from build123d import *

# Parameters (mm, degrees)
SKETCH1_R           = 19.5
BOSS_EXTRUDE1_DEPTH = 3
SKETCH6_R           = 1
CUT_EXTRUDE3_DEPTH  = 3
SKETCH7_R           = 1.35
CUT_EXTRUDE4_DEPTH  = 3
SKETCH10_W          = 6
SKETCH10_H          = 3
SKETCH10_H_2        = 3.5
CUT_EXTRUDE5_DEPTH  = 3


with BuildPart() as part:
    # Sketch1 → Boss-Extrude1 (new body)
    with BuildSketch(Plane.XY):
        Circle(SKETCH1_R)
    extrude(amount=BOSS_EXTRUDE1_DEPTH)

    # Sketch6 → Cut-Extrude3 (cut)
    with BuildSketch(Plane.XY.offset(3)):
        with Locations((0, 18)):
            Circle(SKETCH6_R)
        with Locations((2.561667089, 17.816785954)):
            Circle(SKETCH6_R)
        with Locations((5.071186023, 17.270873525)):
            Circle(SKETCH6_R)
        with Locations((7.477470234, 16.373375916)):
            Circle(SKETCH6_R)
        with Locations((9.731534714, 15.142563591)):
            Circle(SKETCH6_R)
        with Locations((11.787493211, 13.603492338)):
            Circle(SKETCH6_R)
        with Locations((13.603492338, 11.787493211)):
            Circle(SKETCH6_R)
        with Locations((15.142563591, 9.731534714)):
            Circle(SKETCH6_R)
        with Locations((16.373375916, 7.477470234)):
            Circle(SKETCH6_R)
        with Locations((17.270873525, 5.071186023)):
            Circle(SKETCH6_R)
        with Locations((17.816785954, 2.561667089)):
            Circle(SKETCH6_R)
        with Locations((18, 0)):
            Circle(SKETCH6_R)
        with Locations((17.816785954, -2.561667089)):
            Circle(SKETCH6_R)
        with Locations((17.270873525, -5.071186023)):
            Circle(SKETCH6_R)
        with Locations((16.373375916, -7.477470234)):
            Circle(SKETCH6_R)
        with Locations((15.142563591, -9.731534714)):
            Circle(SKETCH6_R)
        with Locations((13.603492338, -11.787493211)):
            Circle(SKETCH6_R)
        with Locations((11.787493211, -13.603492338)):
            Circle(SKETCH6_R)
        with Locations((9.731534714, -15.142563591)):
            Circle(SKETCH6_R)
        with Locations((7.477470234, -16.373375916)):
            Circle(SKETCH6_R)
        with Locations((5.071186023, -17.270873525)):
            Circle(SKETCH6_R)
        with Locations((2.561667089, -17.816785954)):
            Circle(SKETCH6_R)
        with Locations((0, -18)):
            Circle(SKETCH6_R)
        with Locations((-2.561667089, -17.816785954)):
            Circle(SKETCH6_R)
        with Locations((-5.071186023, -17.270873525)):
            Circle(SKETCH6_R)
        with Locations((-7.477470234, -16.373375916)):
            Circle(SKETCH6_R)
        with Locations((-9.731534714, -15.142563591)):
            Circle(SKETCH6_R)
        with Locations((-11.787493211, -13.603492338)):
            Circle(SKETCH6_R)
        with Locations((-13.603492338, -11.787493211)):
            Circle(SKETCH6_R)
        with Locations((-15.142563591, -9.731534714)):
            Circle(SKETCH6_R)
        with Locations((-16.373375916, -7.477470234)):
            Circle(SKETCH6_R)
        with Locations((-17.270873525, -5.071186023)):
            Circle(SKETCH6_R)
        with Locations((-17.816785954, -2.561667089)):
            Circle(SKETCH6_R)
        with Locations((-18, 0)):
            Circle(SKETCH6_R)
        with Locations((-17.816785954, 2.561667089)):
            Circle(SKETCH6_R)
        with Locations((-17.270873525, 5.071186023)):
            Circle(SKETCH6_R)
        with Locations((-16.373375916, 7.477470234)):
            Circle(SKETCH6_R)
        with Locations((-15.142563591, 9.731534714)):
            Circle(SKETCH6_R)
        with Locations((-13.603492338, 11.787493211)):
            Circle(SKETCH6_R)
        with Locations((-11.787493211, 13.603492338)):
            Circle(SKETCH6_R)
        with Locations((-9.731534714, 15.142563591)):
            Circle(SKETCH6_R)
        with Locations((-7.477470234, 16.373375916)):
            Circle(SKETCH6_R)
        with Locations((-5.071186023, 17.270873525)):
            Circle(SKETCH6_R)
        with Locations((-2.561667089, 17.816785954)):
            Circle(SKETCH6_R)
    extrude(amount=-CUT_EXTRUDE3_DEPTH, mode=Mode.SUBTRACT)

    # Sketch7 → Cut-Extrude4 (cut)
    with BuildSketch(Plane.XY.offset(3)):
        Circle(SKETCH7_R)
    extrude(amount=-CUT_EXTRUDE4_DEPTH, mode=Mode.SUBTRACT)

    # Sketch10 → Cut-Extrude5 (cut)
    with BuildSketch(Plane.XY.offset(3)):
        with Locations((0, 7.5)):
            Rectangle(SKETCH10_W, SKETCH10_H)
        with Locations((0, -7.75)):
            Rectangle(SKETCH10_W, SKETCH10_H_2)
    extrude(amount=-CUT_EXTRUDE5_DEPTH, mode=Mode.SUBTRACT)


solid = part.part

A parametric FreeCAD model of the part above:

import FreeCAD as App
import Part
import Sketcher

doc = App.newDocument("Part")
body = doc.addObject("PartDesign::Body", "Body")

sketch1 = body.newObject("Sketcher::SketchObject", "Sketch")
sketch1.AttachmentSupport = (doc.getObject("XY_Plane"), [""])
sketch1.MapMode = "FlatFace"
sketch1.addGeometry(Part.Circle(App.Vector(0, 0, 0), App.Vector(0, 0, 1), 20), False)
sketch1.addConstraint(Sketcher.Constraint("Coincident", 0, 3, -1, 1))
sketch1.addConstraint(Sketcher.Constraint("Diameter", 0, 39.0))
pad1 = body.newObject("PartDesign::Pad", "Pad")
pad1.Profile = sketch1
pad1.Length = 3

sketch2 = body.newObject("Sketcher::SketchObject", "Sketch001")
sketch2.AttachmentSupport = (doc.getObject("XY_Plane"), [""])
sketch2.MapMode = "FlatFace"
sketch2.AttachmentOffset = App.Placement(App.Vector(0, 0, 3), App.Rotation())
sketch2.addGeometry(Part.Circle(App.Vector(0, 18, 0), App.Vector(0, 0, 1), 1), False)
sketch2.addGeometry(Part.Circle(App.Vector(2.6, 17.8, 0), App.Vector(0, 0, 1), 1), False)
sketch2.addGeometry(Part.Circle(App.Vector(5.1, 17.3, 0), App.Vector(0, 0, 1), 1), False)
sketch2.addGeometry(Part.Circle(App.Vector(7.5, 16.4, 0), App.Vector(0, 0, 1), 1), False)
sketch2.addGeometry(Part.Circle(App.Vector(9.7, 15.1, 0), App.Vector(0, 0, 1), 1), False)
sketch2.addGeometry(Part.Circle(App.Vector(11.8, 13.6, 0), App.Vector(0, 0, 1), 1), False)
sketch2.addGeometry(Part.Circle(App.Vector(13.6, 11.8, 0), App.Vector(0, 0, 1), 1), False)
sketch2.addGeometry(Part.Circle(App.Vector(15.1, 9.7, 0), App.Vector(0, 0, 1), 1), False)
sketch2.addGeometry(Part.Circle(App.Vector(16.4, 7.5, 0), App.Vector(0, 0, 1), 1), False)
sketch2.addGeometry(Part.Circle(App.Vector(17.3, 5.1, 0), App.Vector(0, 0, 1), 1), False)
sketch2.addGeometry(Part.Circle(App.Vector(17.8, 2.6, 0), App.Vector(0, 0, 1), 1), False)
sketch2.addGeometry(Part.Circle(App.Vector(18, 0, 0), App.Vector(0, 0, 1), 1), False)
sketch2.addGeometry(Part.Circle(App.Vector(17.8, -2.6, 0), App.Vector(0, 0, 1), 1), False)
sketch2.addGeometry(Part.Circle(App.Vector(17.3, -5.1, 0), App.Vector(0, 0, 1), 1), False)
sketch2.addGeometry(Part.Circle(App.Vector(16.4, -7.5, 0), App.Vector(0, 0, 1), 1), False)
sketch2.addGeometry(Part.Circle(App.Vector(15.1, -9.7, 0), App.Vector(0, 0, 1), 1), False)
sketch2.addGeometry(Part.Circle(App.Vector(13.6, -11.8, 0), App.Vector(0, 0, 1), 1), False)
sketch2.addGeometry(Part.Circle(App.Vector(11.8, -13.6, 0), App.Vector(0, 0, 1), 1), False)
sketch2.addGeometry(Part.Circle(App.Vector(9.7, -15.1, 0), App.Vector(0, 0, 1), 1), False)
sketch2.addGeometry(Part.Circle(App.Vector(7.5, -16.4, 0), App.Vector(0, 0, 1), 1), False)
sketch2.addGeometry(Part.Circle(App.Vector(5.1, -17.3, 0), App.Vector(0, 0, 1), 1), False)
sketch2.addGeometry(Part.Circle(App.Vector(2.6, -17.8, 0), App.Vector(0, 0, 1), 1), False)
sketch2.addGeometry(Part.Circle(App.Vector(0, -18, 0), App.Vector(0, 0, 1), 1), False)
sketch2.addGeometry(Part.Circle(App.Vector(-2.6, -17.8, 0), App.Vector(0, 0, 1), 1), False)
sketch2.addGeometry(Part.Circle(App.Vector(-5.1, -17.3, 0), App.Vector(0, 0, 1), 1), False)
sketch2.addGeometry(Part.Circle(App.Vector(-7.5, -16.4, 0), App.Vector(0, 0, 1), 1), False)
sketch2.addGeometry(Part.Circle(App.Vector(-9.7, -15.1, 0), App.Vector(0, 0, 1), 1), False)
sketch2.addGeometry(Part.Circle(App.Vector(-11.8, -13.6, 0), App.Vector(0, 0, 1), 1), False)
sketch2.addGeometry(Part.Circle(App.Vector(-13.6, -11.8, 0), App.Vector(0, 0, 1), 1), False)
sketch2.addGeometry(Part.Circle(App.Vector(-15.1, -9.7, 0), App.Vector(0, 0, 1), 1), False)
sketch2.addGeometry(Part.Circle(App.Vector(-16.4, -7.5, 0), App.Vector(0, 0, 1), 1), False)
sketch2.addGeometry(Part.Circle(App.Vector(-17.3, -5.1, 0), App.Vector(0, 0, 1), 1), False)
sketch2.addGeometry(Part.Circle(App.Vector(-17.8, -2.6, 0), App.Vector(0, 0, 1), 1), False)
sketch2.addGeometry(Part.Circle(App.Vector(-18, 0, 0), App.Vector(0, 0, 1), 1), False)
sketch2.addGeometry(Part.Circle(App.Vector(-17.8, 2.6, 0), App.Vector(0, 0, 1), 1), False)
sketch2.addGeometry(Part.Circle(App.Vector(-17.3, 5.1, 0), App.Vector(0, 0, 1), 1), False)
sketch2.addGeometry(Part.Circle(App.Vector(-16.4, 7.5, 0), App.Vector(0, 0, 1), 1), False)
sketch2.addGeometry(Part.Circle(App.Vector(-15.1, 9.7, 0), App.Vector(0, 0, 1), 1), False)
sketch2.addGeometry(Part.Circle(App.Vector(-13.6, 11.8, 0), App.Vector(0, 0, 1), 1), False)
sketch2.addGeometry(Part.Circle(App.Vector(-11.8, 13.6, 0), App.Vector(0, 0, 1), 1), False)
sketch2.addGeometry(Part.Circle(App.Vector(-9.7, 15.1, 0), App.Vector(0, 0, 1), 1), False)
sketch2.addGeometry(Part.Circle(App.Vector(-7.5, 16.4, 0), App.Vector(0, 0, 1), 1), False)
sketch2.addGeometry(Part.Circle(App.Vector(-5.1, 17.3, 0), App.Vector(0, 0, 1), 1), False)
sketch2.addGeometry(Part.Circle(App.Vector(-2.6, 17.8, 0), App.Vector(0, 0, 1), 1), False)
sketch2.addConstraint(Sketcher.Constraint("Equal", 0, 1))
sketch2.addConstraint(Sketcher.Constraint("Equal", 1, 2))
sketch2.addConstraint(Sketcher.Constraint("Equal", 2, 3))
sketch2.addConstraint(Sketcher.Constraint("Equal", 3, 4))
sketch2.addConstraint(Sketcher.Constraint("Equal", 4, 5))
sketch2.addConstraint(Sketcher.Constraint("Equal", 5, 6))
sketch2.addConstraint(Sketcher.Constraint("Equal", 6, 7))
sketch2.addConstraint(Sketcher.Constraint("Equal", 7, 8))
sketch2.addConstraint(Sketcher.Constraint("Equal", 8, 9))
sketch2.addConstraint(Sketcher.Constraint("Equal", 9, 10))
sketch2.addConstraint(Sketcher.Constraint("Equal", 10, 11))
sketch2.addConstraint(Sketcher.Constraint("Equal", 11, 12))
sketch2.addConstraint(Sketcher.Constraint("Equal", 12, 13))
sketch2.addConstraint(Sketcher.Constraint("Equal", 13, 14))
sketch2.addConstraint(Sketcher.Constraint("Equal", 14, 15))
sketch2.addConstraint(Sketcher.Constraint("Equal", 15, 16))
sketch2.addConstraint(Sketcher.Constraint("Equal", 16, 17))
sketch2.addConstraint(Sketcher.Constraint("Equal", 17, 18))
sketch2.addConstraint(Sketcher.Constraint("Equal", 18, 19))
sketch2.addConstraint(Sketcher.Constraint("Equal", 19, 20))
sketch2.addConstraint(Sketcher.Constraint("Equal", 20, 21))
sketch2.addConstraint(Sketcher.Constraint("Equal", 21, 22))
sketch2.addConstraint(Sketcher.Constraint("Equal", 22, 23))
sketch2.addConstraint(Sketcher.Constraint("Equal", 23, 24))
sketch2.addConstraint(Sketcher.Constraint("Equal", 24, 25))
sketch2.addConstraint(Sketcher.Constraint("Equal", 25, 26))
sketch2.addConstraint(Sketcher.Constraint("Equal", 26, 27))
sketch2.addConstraint(Sketcher.Constraint("Equal", 27, 28))
sketch2.addConstraint(Sketcher.Constraint("Equal", 28, 29))
sketch2.addConstraint(Sketcher.Constraint("Equal", 29, 30))
sketch2.addConstraint(Sketcher.Constraint("Equal", 30, 31))
sketch2.addConstraint(Sketcher.Constraint("Equal", 31, 32))
sketch2.addConstraint(Sketcher.Constraint("Equal", 32, 33))
sketch2.addConstraint(Sketcher.Constraint("Equal", 33, 34))
sketch2.addConstraint(Sketcher.Constraint("Equal", 34, 35))
sketch2.addConstraint(Sketcher.Constraint("Equal", 35, 36))
sketch2.addConstraint(Sketcher.Constraint("Equal", 36, 37))
sketch2.addConstraint(Sketcher.Constraint("Equal", 37, 38))
sketch2.addConstraint(Sketcher.Constraint("Equal", 38, 39))
sketch2.addConstraint(Sketcher.Constraint("Equal", 39, 40))
sketch2.addConstraint(Sketcher.Constraint("Equal", 40, 41))
sketch2.addConstraint(Sketcher.Constraint("Equal", 41, 42))
sketch2.addConstraint(Sketcher.Constraint("Equal", 42, 43))
sketch2.addConstraint(Sketcher.Constraint("Symmetric", 0, 3, 22, 3, -1, 1))
sketch2.addConstraint(Sketcher.Constraint("Symmetric", 1, 3, 23, 3, -1, 1))
sketch2.addConstraint(Sketcher.Constraint("Symmetric", 2, 3, 24, 3, -1, 1))
sketch2.addConstraint(Sketcher.Constraint("Symmetric", 3, 3, 25, 3, -1, 1))
sketch2.addConstraint(Sketcher.Constraint("Symmetric", 4, 3, 26, 3, -1, 1))
sketch2.addConstraint(Sketcher.Constraint("Symmetric", 5, 3, 27, 3, -1, 1))
sketch2.addConstraint(Sketcher.Constraint("Symmetric", 6, 3, 28, 3, -1, 1))
sketch2.addConstraint(Sketcher.Constraint("Symmetric", 7, 3, 29, 3, -1, 1))
sketch2.addConstraint(Sketcher.Constraint("Symmetric", 8, 3, 30, 3, -1, 1))
sketch2.addConstraint(Sketcher.Constraint("Symmetric", 9, 3, 31, 3, -1, 1))
sketch2.addConstraint(Sketcher.Constraint("Symmetric", 10, 3, 32, 3, -1, 1))
sketch2.addConstraint(Sketcher.Constraint("Symmetric", 11, 3, 33, 3, -1, 1))
sketch2.addConstraint(Sketcher.Constraint("Symmetric", 12, 3, 34, 3, -1, 1))
sketch2.addConstraint(Sketcher.Constraint("Symmetric", 13, 3, 35, 3, -1, 1))
sketch2.addConstraint(Sketcher.Constraint("Symmetric", 14, 3, 36, 3, -1, 1))
sketch2.addConstraint(Sketcher.Constraint("Symmetric", 15, 3, 37, 3, -1, 1))
sketch2.addConstraint(Sketcher.Constraint("Symmetric", 16, 3, 38, 3, -1, 1))
sketch2.addConstraint(Sketcher.Constraint("Symmetric", 17, 3, 39, 3, -1, 1))
sketch2.addConstraint(Sketcher.Constraint("Symmetric", 18, 3, 40, 3, -1, 1))
sketch2.addConstraint(Sketcher.Constraint("Symmetric", 19, 3, 41, 3, -1, 1))
sketch2.addConstraint(Sketcher.Constraint("Symmetric", 20, 3, 42, 3, -1, 1))
sketch2.addConstraint(Sketcher.Constraint("Symmetric", 21, 3, 43, 3, -1, 1))
sketch2.addConstraint(Sketcher.Constraint("Symmetric", 21, 3, 23, 3, -2))
sketch2.addConstraint(Sketcher.Constraint("Symmetric", 20, 3, 24, 3, -2))
sketch2.addConstraint(Sketcher.Constraint("Symmetric", 19, 3, 25, 3, -2))
sketch2.addConstraint(Sketcher.Constraint("Symmetric", 18, 3, 26, 3, -2))
sketch2.addConstraint(Sketcher.Constraint("Symmetric", 17, 3, 27, 3, -2))
sketch2.addConstraint(Sketcher.Constraint("Symmetric", 16, 3, 28, 3, -2))
sketch2.addConstraint(Sketcher.Constraint("Symmetric", 15, 3, 29, 3, -2))
sketch2.addConstraint(Sketcher.Constraint("Symmetric", 14, 3, 30, 3, -2))
sketch2.addConstraint(Sketcher.Constraint("Symmetric", 13, 3, 31, 3, -2))
sketch2.addConstraint(Sketcher.Constraint("Symmetric", 12, 3, 32, 3, -2))
sketch2.addConstraint(Sketcher.Constraint("PointOnObject", 0, 3, -2))
sketch2.addConstraint(Sketcher.Constraint("PointOnObject", 11, 3, -1))
sketch2.addConstraint(Sketcher.Constraint("Diameter", 0, 2.0))
sketch2.addConstraint(Sketcher.Constraint("DistanceY", -1, 1, 0, 3, 18.0))
sketch2.addConstraint(Sketcher.Constraint("DistanceX", -1, 1, 11, 3, 18.0))
sketch2.addConstraint(Sketcher.Constraint("DistanceX", 5, 3, 6, 3, 1.815999))
sketch2.addConstraint(Sketcher.Constraint("DistanceY", 6, 3, 5, 3, 1.815999))
sketch2.addConstraint(Sketcher.Constraint("DistanceY", 12, 3, 7, 3, 12.293202))
sketch2.addConstraint(Sketcher.Constraint("DistanceX", 23, 3, 18, 3, 12.293202))
sketch2.addConstraint(Sketcher.Constraint("DistanceX", -1, 1, 3, 3, 7.47747))
sketch2.addConstraint(Sketcher.Constraint("DistanceY", -1, 1, 8, 3, 7.47747))
sketch2.addConstraint(Sketcher.Constraint("DistanceX", 1, 3, 2, 3, 2.509519))
sketch2.addConstraint(Sketcher.Constraint("DistanceY", 3, 3, 1, 3, 1.44341))
sketch2.addConstraint(Sketcher.Constraint("DistanceX", 2, 3, 4, 3, 4.660349))
sketch2.addConstraint(Sketcher.Constraint("DistanceY", 4, 3, 2, 3, 2.12831))
sketch2.addConstraint(Sketcher.Constraint("DistanceX", 4, 3, 5, 3, 2.055958))
sketch2.addConstraint(Sketcher.Constraint("DistanceY", 5, 3, 4, 3, 1.539071))
sketch2.addConstraint(Sketcher.Constraint("DistanceX", 6, 3, 7, 3, 1.539071))
sketch2.addConstraint(Sketcher.Constraint("DistanceY", 7, 3, 6, 3, 2.055958))
sketch2.addConstraint(Sketcher.Constraint("DistanceY", 7, 3, 3, 3, 6.641841))
sketch2.addConstraint(Sketcher.Constraint("DistanceX", 4, 3, 8, 3, 6.641841))
sketch2.addConstraint(Sketcher.Constraint("DistanceX", 7, 3, 9, 3, 2.12831))
sketch2.addConstraint(Sketcher.Constraint("DistanceY", 9, 3, 7, 3, 4.660349))
sketch2.addConstraint(Sketcher.Constraint("DistanceY", 10, 3, 9, 3, 2.509519))
sketch2.addConstraint(Sketcher.Constraint("DistanceX", 8, 3, 10, 3, 1.44341))
pocket1 = body.newObject("PartDesign::Pocket", "Pocket")
pocket1.Profile = sketch2
pocket1.Length = 3

sketch3 = body.newObject("Sketcher::SketchObject", "Sketch002")
sketch3.AttachmentSupport = (doc.getObject("XY_Plane"), [""])
sketch3.MapMode = "FlatFace"
sketch3.AttachmentOffset = App.Placement(App.Vector(0, 0, 3), App.Rotation())
sketch3.addGeometry(Part.Circle(App.Vector(0, 0, 0), App.Vector(0, 0, 1), 1.4), False)
sketch3.addConstraint(Sketcher.Constraint("Coincident", 0, 3, -1, 1))
sketch3.addConstraint(Sketcher.Constraint("Diameter", 0, 2.7))
pocket2 = body.newObject("PartDesign::Pocket", "Pocket001")
pocket2.Profile = sketch3
pocket2.Length = 3

sketch4 = body.newObject("Sketcher::SketchObject", "Sketch003")
sketch4.AttachmentSupport = (doc.getObject("XY_Plane"), [""])
sketch4.MapMode = "FlatFace"
sketch4.AttachmentOffset = App.Placement(App.Vector(0, 0, 3), App.Rotation())
sketch4.addGeometry(Part.LineSegment(App.Vector(-3, 9, 0), App.Vector(-3, 6, 0)), False)
sketch4.addGeometry(Part.LineSegment(App.Vector(-3, 6, 0), App.Vector(3, 6, 0)), False)
sketch4.addGeometry(Part.LineSegment(App.Vector(3, 6, 0), App.Vector(3, 9, 0)), False)
sketch4.addGeometry(Part.LineSegment(App.Vector(3, 9, 0), App.Vector(-3, 9, 0)), False)
sketch4.addGeometry(Part.LineSegment(App.Vector(-3, -6, 0), App.Vector(-3, -9.5, 0)), False)
sketch4.addGeometry(Part.LineSegment(App.Vector(-3, -9.5, 0), App.Vector(3, -9.5, 0)), False)
sketch4.addGeometry(Part.LineSegment(App.Vector(3, -9.5, 0), App.Vector(3, -6, 0)), False)
sketch4.addGeometry(Part.LineSegment(App.Vector(3, -6, 0), App.Vector(-3, -6, 0)), False)
sketch4.addConstraint(Sketcher.Constraint("Coincident", 0, 2, 1, 1))
sketch4.addConstraint(Sketcher.Constraint("Coincident", 1, 2, 2, 1))
sketch4.addConstraint(Sketcher.Constraint("Coincident", 2, 2, 3, 1))
sketch4.addConstraint(Sketcher.Constraint("Coincident", 3, 2, 0, 1))
sketch4.addConstraint(Sketcher.Constraint("Coincident", 4, 2, 5, 1))
sketch4.addConstraint(Sketcher.Constraint("Coincident", 5, 2, 6, 1))
sketch4.addConstraint(Sketcher.Constraint("Coincident", 6, 2, 7, 1))
sketch4.addConstraint(Sketcher.Constraint("Coincident", 7, 2, 4, 1))
sketch4.addConstraint(Sketcher.Constraint("Vertical", 0))
sketch4.addConstraint(Sketcher.Constraint("Horizontal", 1))
sketch4.addConstraint(Sketcher.Constraint("Vertical", 2))
sketch4.addConstraint(Sketcher.Constraint("Horizontal", 3))
sketch4.addConstraint(Sketcher.Constraint("Vertical", 4))
sketch4.addConstraint(Sketcher.Constraint("Horizontal", 5))
sketch4.addConstraint(Sketcher.Constraint("Vertical", 6))
sketch4.addConstraint(Sketcher.Constraint("Horizontal", 7))
sketch4.addConstraint(Sketcher.Constraint("Symmetric", 0, 2, 6, 2, -1, 1))
sketch4.addConstraint(Sketcher.Constraint("Vertical", 3, 2, 4, 2))
sketch4.addConstraint(Sketcher.Constraint("Vertical", 2, 2, 5, 2))
sketch4.addConstraint(Sketcher.Constraint("DistanceX", 1, 1, 1, 2, 6.0))
sketch4.addConstraint(Sketcher.Constraint("DistanceY", 0, 2, 0, 1, 3.0))
sketch4.addConstraint(Sketcher.Constraint("DistanceY", 4, 2, 4, 1, 3.5))
sketch4.addConstraint(Sketcher.Constraint("DistanceY", -1, 1, 0, 2, 6.0))
pocket3 = body.newObject("PartDesign::Pocket", "Pocket002")
pocket3.Profile = sketch4
pocket3.Length = 3

doc.recompute()
